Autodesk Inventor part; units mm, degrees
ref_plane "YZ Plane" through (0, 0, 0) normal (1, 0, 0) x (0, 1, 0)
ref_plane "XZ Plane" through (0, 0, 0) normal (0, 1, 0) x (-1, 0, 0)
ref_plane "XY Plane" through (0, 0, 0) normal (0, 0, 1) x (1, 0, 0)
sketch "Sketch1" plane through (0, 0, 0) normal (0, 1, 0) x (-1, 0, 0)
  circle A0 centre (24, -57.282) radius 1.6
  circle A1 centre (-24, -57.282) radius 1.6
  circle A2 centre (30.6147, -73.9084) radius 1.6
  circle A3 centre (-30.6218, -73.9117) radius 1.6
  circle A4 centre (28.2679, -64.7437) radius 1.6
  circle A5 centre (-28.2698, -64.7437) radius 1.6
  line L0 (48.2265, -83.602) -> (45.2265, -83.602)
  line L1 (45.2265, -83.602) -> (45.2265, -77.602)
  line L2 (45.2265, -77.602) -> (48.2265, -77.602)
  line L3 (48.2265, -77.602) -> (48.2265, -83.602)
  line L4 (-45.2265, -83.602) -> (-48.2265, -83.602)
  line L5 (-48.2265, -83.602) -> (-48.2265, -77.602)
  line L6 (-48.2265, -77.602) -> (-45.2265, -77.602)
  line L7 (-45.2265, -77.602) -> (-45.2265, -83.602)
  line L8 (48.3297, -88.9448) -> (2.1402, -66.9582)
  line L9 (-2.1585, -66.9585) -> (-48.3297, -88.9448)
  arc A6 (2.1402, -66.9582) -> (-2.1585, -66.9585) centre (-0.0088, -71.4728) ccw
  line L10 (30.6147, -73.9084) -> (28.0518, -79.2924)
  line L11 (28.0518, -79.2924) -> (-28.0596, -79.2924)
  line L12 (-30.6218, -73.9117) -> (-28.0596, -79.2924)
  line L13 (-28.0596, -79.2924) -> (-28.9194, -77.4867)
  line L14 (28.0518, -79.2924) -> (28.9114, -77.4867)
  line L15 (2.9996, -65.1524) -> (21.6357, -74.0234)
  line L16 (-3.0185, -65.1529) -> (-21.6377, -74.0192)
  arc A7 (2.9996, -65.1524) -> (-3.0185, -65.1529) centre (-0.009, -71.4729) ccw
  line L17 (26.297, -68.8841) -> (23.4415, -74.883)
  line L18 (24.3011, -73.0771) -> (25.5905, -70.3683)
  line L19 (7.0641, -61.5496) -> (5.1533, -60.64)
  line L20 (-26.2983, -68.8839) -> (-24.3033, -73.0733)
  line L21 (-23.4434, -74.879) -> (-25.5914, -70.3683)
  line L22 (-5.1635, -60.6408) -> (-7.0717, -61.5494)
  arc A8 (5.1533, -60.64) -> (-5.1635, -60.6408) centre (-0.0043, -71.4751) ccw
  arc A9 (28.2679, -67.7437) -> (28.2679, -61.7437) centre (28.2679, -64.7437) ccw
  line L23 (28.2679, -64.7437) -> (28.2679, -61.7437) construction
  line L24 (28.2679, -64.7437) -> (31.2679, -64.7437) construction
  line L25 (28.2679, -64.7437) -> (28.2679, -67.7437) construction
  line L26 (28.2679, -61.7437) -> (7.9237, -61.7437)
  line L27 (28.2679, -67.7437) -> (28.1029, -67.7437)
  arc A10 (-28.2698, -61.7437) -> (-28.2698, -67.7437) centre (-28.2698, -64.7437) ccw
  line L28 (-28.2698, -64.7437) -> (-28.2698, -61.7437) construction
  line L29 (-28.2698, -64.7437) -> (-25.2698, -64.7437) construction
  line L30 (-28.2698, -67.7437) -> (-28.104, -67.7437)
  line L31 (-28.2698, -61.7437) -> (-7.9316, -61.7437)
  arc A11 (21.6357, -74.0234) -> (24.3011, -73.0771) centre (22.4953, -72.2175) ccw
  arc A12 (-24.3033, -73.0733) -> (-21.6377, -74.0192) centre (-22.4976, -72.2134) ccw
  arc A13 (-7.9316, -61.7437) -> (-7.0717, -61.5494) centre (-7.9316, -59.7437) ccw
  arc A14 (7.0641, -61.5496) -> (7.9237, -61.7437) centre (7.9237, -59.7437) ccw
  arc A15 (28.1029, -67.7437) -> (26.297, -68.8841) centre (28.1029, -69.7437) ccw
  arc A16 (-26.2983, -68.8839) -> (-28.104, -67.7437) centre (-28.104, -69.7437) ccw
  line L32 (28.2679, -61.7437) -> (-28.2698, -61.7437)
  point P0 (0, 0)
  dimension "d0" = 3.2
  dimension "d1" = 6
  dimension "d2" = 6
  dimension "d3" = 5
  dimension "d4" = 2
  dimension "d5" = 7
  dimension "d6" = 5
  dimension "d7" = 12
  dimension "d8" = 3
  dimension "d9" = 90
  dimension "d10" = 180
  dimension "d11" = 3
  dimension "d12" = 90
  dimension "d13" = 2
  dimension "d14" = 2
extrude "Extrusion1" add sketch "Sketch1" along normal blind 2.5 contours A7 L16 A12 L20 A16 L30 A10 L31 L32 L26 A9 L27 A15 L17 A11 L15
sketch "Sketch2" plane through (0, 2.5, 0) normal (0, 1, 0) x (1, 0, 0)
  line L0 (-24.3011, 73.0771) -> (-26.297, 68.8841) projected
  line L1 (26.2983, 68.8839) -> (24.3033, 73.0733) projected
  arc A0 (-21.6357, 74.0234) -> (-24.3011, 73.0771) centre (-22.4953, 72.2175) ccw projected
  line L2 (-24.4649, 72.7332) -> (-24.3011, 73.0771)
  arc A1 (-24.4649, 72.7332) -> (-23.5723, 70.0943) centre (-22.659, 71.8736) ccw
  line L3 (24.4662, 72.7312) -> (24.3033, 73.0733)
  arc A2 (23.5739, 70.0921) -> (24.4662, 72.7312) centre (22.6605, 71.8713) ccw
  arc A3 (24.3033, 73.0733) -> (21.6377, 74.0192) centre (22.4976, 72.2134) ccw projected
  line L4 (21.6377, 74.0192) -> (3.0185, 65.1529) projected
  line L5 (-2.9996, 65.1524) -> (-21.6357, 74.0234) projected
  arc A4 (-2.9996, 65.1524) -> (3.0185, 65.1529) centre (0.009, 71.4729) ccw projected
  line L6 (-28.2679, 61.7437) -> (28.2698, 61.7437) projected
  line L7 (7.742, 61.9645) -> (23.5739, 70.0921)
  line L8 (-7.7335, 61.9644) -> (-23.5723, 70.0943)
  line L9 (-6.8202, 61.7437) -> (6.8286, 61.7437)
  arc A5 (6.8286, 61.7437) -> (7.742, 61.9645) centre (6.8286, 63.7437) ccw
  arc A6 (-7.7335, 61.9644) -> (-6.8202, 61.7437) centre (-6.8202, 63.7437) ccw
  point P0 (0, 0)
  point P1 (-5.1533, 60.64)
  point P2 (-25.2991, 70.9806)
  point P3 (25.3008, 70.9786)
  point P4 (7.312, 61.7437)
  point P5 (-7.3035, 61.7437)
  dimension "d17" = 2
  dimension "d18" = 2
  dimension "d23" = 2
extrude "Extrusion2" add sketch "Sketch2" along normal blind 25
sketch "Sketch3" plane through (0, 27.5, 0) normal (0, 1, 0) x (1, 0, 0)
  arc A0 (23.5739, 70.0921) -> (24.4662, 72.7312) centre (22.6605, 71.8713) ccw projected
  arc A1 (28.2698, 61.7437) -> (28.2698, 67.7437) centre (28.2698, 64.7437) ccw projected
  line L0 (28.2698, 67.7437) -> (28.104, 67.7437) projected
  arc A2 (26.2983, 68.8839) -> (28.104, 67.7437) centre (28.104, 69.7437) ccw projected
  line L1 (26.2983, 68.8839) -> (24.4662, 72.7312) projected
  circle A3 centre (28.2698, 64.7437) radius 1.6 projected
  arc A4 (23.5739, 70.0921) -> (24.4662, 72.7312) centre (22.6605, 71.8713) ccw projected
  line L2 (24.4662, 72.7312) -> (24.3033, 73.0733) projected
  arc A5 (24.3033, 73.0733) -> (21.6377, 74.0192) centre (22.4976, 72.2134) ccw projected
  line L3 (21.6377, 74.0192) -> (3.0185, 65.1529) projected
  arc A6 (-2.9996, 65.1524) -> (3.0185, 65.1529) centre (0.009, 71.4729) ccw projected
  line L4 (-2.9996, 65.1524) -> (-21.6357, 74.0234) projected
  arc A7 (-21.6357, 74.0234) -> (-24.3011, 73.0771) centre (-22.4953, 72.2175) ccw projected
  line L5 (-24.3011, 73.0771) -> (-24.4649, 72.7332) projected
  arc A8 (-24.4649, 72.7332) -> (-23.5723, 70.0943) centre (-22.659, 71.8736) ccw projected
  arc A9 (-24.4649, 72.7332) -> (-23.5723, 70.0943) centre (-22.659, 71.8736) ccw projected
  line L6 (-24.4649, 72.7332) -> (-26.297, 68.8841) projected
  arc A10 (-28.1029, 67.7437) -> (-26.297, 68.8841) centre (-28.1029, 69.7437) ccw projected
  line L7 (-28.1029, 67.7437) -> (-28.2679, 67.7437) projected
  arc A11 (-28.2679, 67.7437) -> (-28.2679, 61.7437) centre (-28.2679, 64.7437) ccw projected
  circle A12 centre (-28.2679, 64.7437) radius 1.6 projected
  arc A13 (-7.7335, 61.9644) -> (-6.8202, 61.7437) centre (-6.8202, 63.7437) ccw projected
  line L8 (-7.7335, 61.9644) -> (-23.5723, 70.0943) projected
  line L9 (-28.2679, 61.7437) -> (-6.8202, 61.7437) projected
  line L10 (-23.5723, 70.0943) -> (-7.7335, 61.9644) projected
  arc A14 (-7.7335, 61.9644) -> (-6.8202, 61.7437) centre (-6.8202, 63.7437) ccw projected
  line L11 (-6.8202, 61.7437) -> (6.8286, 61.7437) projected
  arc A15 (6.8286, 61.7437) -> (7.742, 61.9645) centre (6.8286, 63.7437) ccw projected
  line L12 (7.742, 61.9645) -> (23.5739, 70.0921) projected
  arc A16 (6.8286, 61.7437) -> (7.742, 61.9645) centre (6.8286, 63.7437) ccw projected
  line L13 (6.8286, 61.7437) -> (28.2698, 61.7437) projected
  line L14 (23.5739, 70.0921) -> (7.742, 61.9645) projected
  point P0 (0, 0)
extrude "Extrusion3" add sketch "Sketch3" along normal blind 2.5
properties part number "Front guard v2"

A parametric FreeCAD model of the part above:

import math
import FreeCAD as App
import Part
import Sketcher

V = App.Vector

doc = App.newDocument("Part")
body = doc.addObject("PartDesign::Body", "Body")

# Sketch on XZ plane
sketch1 = doc.addObject("Sketcher::SketchObject", "Sketch")
body.addObject(sketch1)
sketch1.AttachmentSupport = (doc.XZ_Plane, [""])
sketch1.MapMode = "FlatFace"
sketch1.addGeometry([
    Part.ArcOfCircle(Part.Circle(V(0.01, -71.47, 0), V(0, 0, 1), 7), math.radians(65), math.radians(115)),  # 0
    Part.LineSegment(V(-3, -65.15, 0), V(-21.64, -74.02, 0)),  # 1
    Part.ArcOfCircle(Part.Circle(V(-22.5, -72.22, 0), V(0, 0, 1), 2), math.radians(-155), math.radians(-65)),  # 2
    Part.LineSegment(V(-24.3, -73.08, 0), V(-26.3, -68.88, 0)),  # 3
    Part.ArcOfCircle(Part.Circle(V(-28.1, -69.74, 0), V(0, 0, 1), 2), math.radians(25), math.radians(90)),  # 4
    Part.LineSegment(V(-28.1, -67.74, 0), V(-28.27, -67.74, 0)),  # 5
    Part.ArcOfCircle(Part.Circle(V(-28.27, -64.74, 0), V(0, 0, 1), 3), math.radians(90), math.radians(270)),  # 6
    Part.LineSegment(V(-28.27, -61.74, 0), V(28.27, -61.74, 0)),  # 7
    Part.ArcOfCircle(Part.Circle(V(28.27, -64.74, 0), V(0, 0, 1), 3), math.radians(-90), math.radians(90)),  # 8
    Part.LineSegment(V(28.27, -67.74, 0), V(28.1, -67.74, 0)),  # 9
    Part.ArcOfCircle(Part.Circle(V(28.1, -69.74, 0), V(0, 0, 1), 2), math.radians(90), math.radians(155)),  # 10
    Part.LineSegment(V(26.3, -68.88, 0), V(24.3, -73.07, 0)),  # 11
    Part.ArcOfCircle(Part.Circle(V(22.5, -72.21, 0), V(0, 0, 1), 2), math.radians(-115), math.radians(-25)),  # 12
    Part.LineSegment(V(21.64, -74.02, 0), V(3.02, -65.15, 0)),  # 13
    Part.Circle(V(28.27, -64.74, 0), V(0, 0, 1), 1.6),  # 14
    Part.Circle(V(-28.27, -64.74, 0), V(0, 0, 1), 1.6),  # 15
], False)
sketch1.addConstraint([
    Sketcher.Constraint("Tangent", 0, 2, 1, 1),
    Sketcher.Constraint("Tangent", 1, 2, 2, 2),
    Sketcher.Constraint("Tangent", 2, 1, 3, 1),
    Sketcher.Constraint("Tangent", 3, 2, 4, 1),
    Sketcher.Constraint("Tangent", 4, 2, 5, 1),
    Sketcher.Constraint("Tangent", 5, 2, 6, 2),
    Sketcher.Constraint("Tangent", 6, 1, 7, 1),
    Sketcher.Constraint("Tangent", 7, 2, 8, 2),
    Sketcher.Constraint("Tangent", 8, 1, 9, 1),
    Sketcher.Constraint("Tangent", 9, 2, 10, 1),
    Sketcher.Constraint("Tangent", 10, 2, 11, 1),
    Sketcher.Constraint("Tangent", 11, 2, 12, 2),
    Sketcher.Constraint("Tangent", 12, 1, 13, 1),
    Sketcher.Constraint("Tangent", 13, 2, 0, 1),
    Sketcher.Constraint("Horizontal", 5),
    Sketcher.Constraint("Horizontal", 7),
    Sketcher.Constraint("Horizontal", 9),
    Sketcher.Constraint("Coincident", 14, 3, 8, 3),
    Sketcher.Constraint("Coincident", 15, 3, 6, 3),
    Sketcher.Constraint("Equal", 2, 4),
    Sketcher.Constraint("Equal", 6, 8),
    Sketcher.Constraint("Equal", 4, 10),
    Sketcher.Constraint("Equal", 10, 12),
    Sketcher.Constraint("Equal", 14, 15),
    Sketcher.Constraint("Perpendicular", 1, 3),
    Sketcher.Constraint("Perpendicular", 11, 13),
    Sketcher.Constraint("Radius", 0, 7.0),
    Sketcher.Constraint("Radius", 2, 2.0),
    Sketcher.Constraint("Radius", 6, 3.0),
    Sketcher.Constraint("Diameter", 14, 3.2),
    Sketcher.Constraint("DistanceX", 0, 2, -1, 1, 2.9996),
    Sketcher.Constraint("DistanceX", 5, 2, 5, 1, 0.165),
    Sketcher.Constraint("DistanceY", 11, 2, 12, 3, 0.86),
    Sketcher.Constraint("DistanceX", 7, 1, 7, 2, 56.5377),
    Sketcher.Constraint("DistanceX", 9, 2, 9, 1, 0.1658),
    Sketcher.Constraint("DistanceX", -1, 1, 0, 3, 0.009),
    Sketcher.Constraint("DistanceY", 0, 3, -1, 1, 71.473),
    Sketcher.Constraint("DistanceX", 4, 3, -1, 1, 28.103),
    Sketcher.Constraint("DistanceY", 3, 2, -1, 1, 68.884),
])
pad1 = doc.addObject("PartDesign::Pad", "Pad")
body.addObject(pad1)
pad1.Profile = sketch1
pad1.Length = 2.5
pad1.Reversed = True

# Sketch on XZ plane
sketch2 = doc.addObject("Sketcher::SketchObject", "Sketch001")
body.addObject(sketch2)
sketch2.AttachmentSupport = (doc.XZ_Plane, [""])
sketch2.MapMode = "FlatFace"
sketch2.AttachmentOffset = App.Placement(V(0, 0, -2.5), App.Rotation())
sketch2.addGeometry([
    Part.ArcOfCircle(Part.Circle(V(-22.4953, -72.2175, 0), V(0, 0, 1), 2.000047), math.radians(-154.544538), math.radians(-64.545769)),  # 0
    Part.LineSegment(V(-24.3011, -73.0771, 0), V(-24.464818, -72.733161, 0)),  # 1
    Part.ArcOfCircle(Part.Circle(V(-22.659, -71.8736, 0), V(0, 0, 1), 2.000047), math.radians(117.171055), math.radians(205.454231)),  # 2
    Part.LineSegment(V(-23.5723, -70.0943, 0), V(-7.7335, -61.9644, 0)),  # 3
    Part.ArcOfCircle(Part.Circle(V(-6.8202, -63.7437, 0), V(0, 0, 1), 2.000006), math.radians(90), math.radians(117.171055)),  # 4
    Part.LineSegment(V(-6.8202, -61.7437, 0), V(6.8286, -61.7437, 0)),  # 5
    Part.ArcOfCircle(Part.Circle(V(6.8286, -63.7437, 0), V(0, 0, 1), 2), math.radians(62.825088), math.radians(90)),  # 6
    Part.LineSegment(V(7.742, -61.9645, 0), V(23.5739, -70.0921, 0)),  # 7
    Part.ArcOfCircle(Part.Circle(V(22.6605, -71.8713, 0), V(0, 0, 1), 1.999963), math.radians(-25.464454), math.radians(62.825088)),  # 8
    Part.LineSegment(V(24.466207, -72.731203, 0), V(24.3033, -73.0733, 0)),  # 9
    Part.ArcOfCircle(Part.Circle(V(22.4976, -72.2134, 0), V(0, 0, 1), 1.999995), math.radians(-115.463222), math.radians(-25.464454)),  # 10
    Part.LineSegment(V(21.6377, -74.0192, 0), V(3.0185, -65.1529, 0)),  # 11
    Part.ArcOfCircle(Part.Circle(V(0.009, -71.4729, 0), V(0, 0, 1), 7.000028), math.radians(64.536831), math.radians(115.454759)),  # 12
    Part.LineSegment(V(-2.9996, -65.1524, 0), V(-21.6357, -74.0234, 0)),  # 13
], False)
sketch2.addConstraint([
    Sketcher.Constraint("Coincident", 0, 1, 1, 1),
    Sketcher.Constraint("Coincident", 1, 2, 2, 2),
    Sketcher.Constraint("Coincident", 2, 1, 3, 1),
    Sketcher.Constraint("Coincident", 3, 2, 4, 2),
    Sketcher.Constraint("Coincident", 4, 1, 5, 1),
    Sketcher.Constraint("Coincident", 5, 2, 6, 2),
    Sketcher.Constraint("Coincident", 6, 1, 7, 1),
    Sketcher.Constraint("Coincident", 7, 2, 8, 2),
    Sketcher.Constraint("Coincident", 8, 1, 9, 1),
    Sketcher.Constraint("Coincident", 9, 2, 10, 2),
    Sketcher.Constraint("Coincident", 10, 1, 11, 1),
    Sketcher.Constraint("Coincident", 11, 2, 12, 1),
    Sketcher.Constraint("Coincident", 12, 2, 13, 1),
    Sketcher.Constraint("Coincident", 13, 2, 0, 2),
    Sketcher.Constraint("Horizontal", 5),
    Sketcher.Constraint("Radius", 0, 2.0),
    Sketcher.Constraint("Radius", 2, 2.0),
    Sketcher.Constraint("Radius", 4, 2.0),
    Sketcher.Constraint("Radius", 6, 2.0),
    Sketcher.Constraint("Radius", 8, 2.0),
    Sketcher.Constraint("Radius", 10, 2.0),
    Sketcher.Constraint("Radius", 12, 7.0),
    Sketcher.Constraint("DistanceY", 2, 3, 4, 3, 8.13),
    Sketcher.Constraint("DistanceY", 8, 1, 8, 3, 0.86),
    Sketcher.Constraint("DistanceY", 9, 2, 10, 3, 0.86),
    Sketcher.Constraint("DistanceX", 11, 2, 6, 3, 3.81),
    Sketcher.Constraint("DistanceX", 11, 2, 5, 2, 3.81),
    Sketcher.Constraint("DistanceY", 12, 3, 11, 2, 6.32),
    Sketcher.Constraint("Distance", 1, 0.381),
    Sketcher.Constraint("Distance", 9, 0.379),
    Sketcher.Constraint("DistanceX", 5, 1, 5, 2, 13.6488),
    Sketcher.Constraint("DistanceX", 2, 3, -1, 1, 22.659),
    Sketcher.Constraint("DistanceX", -1, 1, 12, 3, 0.009),
    Sketcher.Constraint("DistanceY", 12, 3, -1, 1, 71.473),
    Sketcher.Constraint("DistanceX", -1, 1, 6, 1, 7.742),
    Sketcher.Constraint("DistanceX", -1, 1, 7, 2, 23.574),
    Sketcher.Constraint("DistanceY", 7, 2, -1, 1, 70.092),
    Sketcher.Constraint("DistanceY", 10, 1, -1, 1, 74.019),
    Sketcher.Constraint("DistanceY", 0, 3, 2, 3, 0.344),
    Sketcher.Constraint("DistanceX", 0, 3, 4, 3, 15.675),
    Sketcher.Constraint("DistanceX", 0, 3, 6, 3, 29.324),
    Sketcher.Constraint("DistanceX", 6, 3, 8, 3, 15.832),
    Sketcher.Constraint("DistanceX", 10, 3, 8, 3, 0.163),
    Sketcher.Constraint("DistanceY", 0, 3, 10, 3, 0.004),
    Sketcher.Constraint("DistanceX", 0, 1, 0, 3, 1.806),
    Sketcher.Constraint("DistanceX", 2, 1, 0, 3, 1.077),
    Sketcher.Constraint("DistanceX", 3, 2, 6, 3, 14.562),
    Sketcher.Constraint("DistanceX", 3, 2, 12, 2, 4.734),
    Sketcher.Constraint("DistanceY", 13, 2, 0, 3, 1.806),
])
pad2 = doc.addObject("PartDesign::Pad", "Pad001")
body.addObject(pad2)
pad2.Profile = sketch2
pad2.Length = 25
pad2.Reversed = True

# Sketch on XZ plane
sketch3 = doc.addObject("Sketcher::SketchObject", "Sketch002")
body.addObject(sketch3)
sketch3.AttachmentSupport = (doc.XZ_Plane, [""])
sketch3.MapMode = "FlatFace"
sketch3.AttachmentOffset = App.Placement(V(0, 0, -27.5), App.Rotation())
sketch3.addGeometry([
    Part.ArcOfCircle(Part.Circle(V(28.27, -64.74, 0), V(0, 0, 1), 3), math.radians(-90), math.radians(90)),  # 0
    Part.LineSegment(V(28.27, -67.74, 0), V(28.1, -67.74, 0)),  # 1
    Part.ArcOfCircle(Part.Circle(V(28.1, -69.74, 0), V(0, 0, 1), 2), math.radians(90), math.radians(155)),  # 2
    Part.LineSegment(V(26.3, -68.88, 0), V(24.47, -72.73, 0)),  # 3
    Part.LineSegment(V(24.47, -72.73, 0), V(24.3, -73.07, 0)),  # 4
    Part.ArcOfCircle(Part.Circle(V(22.5, -72.21, 0), V(0, 0, 1), 2), math.radians(-115), math.radians(-25)),  # 5
    Part.LineSegment(V(21.64, -74.02, 0), V(3.02, -65.15, 0)),  # 6
    Part.ArcOfCircle(Part.Circle(V(0.01, -71.47, 0), V(0, 0, 1), 7), math.radians(65), math.radians(115)),  # 7
    Part.LineSegment(V(-3, -65.15, 0), V(-21.64, -74.02, 0)),  # 8
    Part.ArcOfCircle(Part.Circle(V(-22.5, -72.22, 0), V(0, 0, 1), 2), math.radians(-155), math.radians(-65)),  # 9
    Part.LineSegment(V(-24.3, -73.08, 0), V(-24.46, -72.73, 0)),  # 10
    Part.LineSegment(V(-24.46, -72.73, 0), V(-26.3, -68.88, 0)),  # 11
    Part.ArcOfCircle(Part.Circle(V(-28.1, -69.74, 0), V(0, 0, 1), 2), math.radians(25), math.radians(90)),  # 12
    Part.LineSegment(V(-28.1, -67.74, 0), V(-28.27, -67.74, 0)),  # 13
    Part.ArcOfCircle(Part.Circle(V(-28.27, -64.74, 0), V(0, 0, 1), 3), math.radians(90), math.radians(270)),  # 14
    Part.LineSegment(V(-28.27, -61.74, 0), V(28.27, -61.74, 0)),  # 15
    Part.Circle(V(28.27, -64.74, 0), V(0, 0, 1), 1.6),  # 16
    Part.Circle(V(-28.27, -64.74, 0), V(0, 0, 1), 1.6),  # 17
], False)
sketch3.addConstraint([
    Sketcher.Constraint("Tangent", 0, 1, 1, 1),
    Sketcher.Constraint("Tangent", 1, 2, 2, 1),
    Sketcher.Constraint("Tangent", 2, 2, 3, 1),
    Sketcher.Constraint("Coincident", 3, 2, 4, 1),
    Sketcher.Constraint("Tangent", 4, 2, 5, 2),
    Sketcher.Constraint("Tangent", 5, 1, 6, 1),
    Sketcher.Constraint("Tangent", 6, 2, 7, 1),
    Sketcher.Constraint("Tangent", 7, 2, 8, 1),
    Sketcher.Constraint("Tangent", 8, 2, 9, 2),
    Sketcher.Constraint("Tangent", 9, 1, 10, 1),
    Sketcher.Constraint("Coincident", 10, 2, 11, 1),
    Sketcher.Constraint("Tangent", 11, 2, 12, 1),
    Sketcher.Constraint("Tangent", 12, 2, 13, 1),
    Sketcher.Constraint("Tangent", 13, 2, 14, 2),
    Sketcher.Constraint("Tangent", 14, 1, 15, 1),
    Sketcher.Constraint("Tangent", 15, 2, 0, 2),
    Sketcher.Constraint("Horizontal", 1),
    Sketcher.Constraint("Horizontal", 13),
    Sketcher.Constraint("Horizontal", 15),
    Sketcher.Constraint("Coincident", 16, 3, 0, 3),
    Sketcher.Constraint("Coincident", 17, 3, 14, 3),
    Sketcher.Constraint("Equal", 2, 5),
    Sketcher.Constraint("Equal", 5, 9),
    Sketcher.Constraint("Equal", 9, 12),
    Sketcher.Constraint("Equal", 0, 14),
    Sketcher.Constraint("Equal", 16, 17),
    Sketcher.Constraint("Parallel", 3, 4),
    Sketcher.Constraint("Perpendicular", 4, 6),
    Sketcher.Constraint("Perpendicular", 8, 10),
    Sketcher.Constraint("Parallel", 10, 11),
    Sketcher.Constraint("Radius", 0, 3.0),
    Sketcher.Constraint("Radius", 2, 2.0),
    Sketcher.Constraint("Radius", 7, 7.0),
    Sketcher.Constraint("Diameter", 16, 3.2),
    Sketcher.Constraint("DistanceX", 13, 2, 13, 1, 0.165),
    Sketcher.Constraint("DistanceY", 4, 2, 5, 3, 0.86),
    Sketcher.Constraint("Distance", 4, 0.379),
    Sketcher.Constraint("Distance", 10, 0.381),
    Sketcher.Constraint("Distance", 11, 4.263),
    Sketcher.Constraint("DistanceX", 1, 2, 1, 1, 0.1658),
    Sketcher.Constraint("DistanceX", 15, 1, 15, 2, 56.5377),
    Sketcher.Constraint("DistanceX", -1, 1, 2, 3, 28.104),
    Sketcher.Constraint("DistanceX", -1, 1, 7, 3, 0.009),
    Sketcher.Constraint("DistanceY", 7, 3, -1, 1, 71.473),
    Sketcher.Constraint("DistanceY", 2, 2, -1, 1, 68.884),
])
pad3 = doc.addObject("PartDesign::Pad", "Pad002")
body.addObject(pad3)
pad3.Profile = sketch3
pad3.Length = 2.5
pad3.Reversed = True

doc.recompute()
